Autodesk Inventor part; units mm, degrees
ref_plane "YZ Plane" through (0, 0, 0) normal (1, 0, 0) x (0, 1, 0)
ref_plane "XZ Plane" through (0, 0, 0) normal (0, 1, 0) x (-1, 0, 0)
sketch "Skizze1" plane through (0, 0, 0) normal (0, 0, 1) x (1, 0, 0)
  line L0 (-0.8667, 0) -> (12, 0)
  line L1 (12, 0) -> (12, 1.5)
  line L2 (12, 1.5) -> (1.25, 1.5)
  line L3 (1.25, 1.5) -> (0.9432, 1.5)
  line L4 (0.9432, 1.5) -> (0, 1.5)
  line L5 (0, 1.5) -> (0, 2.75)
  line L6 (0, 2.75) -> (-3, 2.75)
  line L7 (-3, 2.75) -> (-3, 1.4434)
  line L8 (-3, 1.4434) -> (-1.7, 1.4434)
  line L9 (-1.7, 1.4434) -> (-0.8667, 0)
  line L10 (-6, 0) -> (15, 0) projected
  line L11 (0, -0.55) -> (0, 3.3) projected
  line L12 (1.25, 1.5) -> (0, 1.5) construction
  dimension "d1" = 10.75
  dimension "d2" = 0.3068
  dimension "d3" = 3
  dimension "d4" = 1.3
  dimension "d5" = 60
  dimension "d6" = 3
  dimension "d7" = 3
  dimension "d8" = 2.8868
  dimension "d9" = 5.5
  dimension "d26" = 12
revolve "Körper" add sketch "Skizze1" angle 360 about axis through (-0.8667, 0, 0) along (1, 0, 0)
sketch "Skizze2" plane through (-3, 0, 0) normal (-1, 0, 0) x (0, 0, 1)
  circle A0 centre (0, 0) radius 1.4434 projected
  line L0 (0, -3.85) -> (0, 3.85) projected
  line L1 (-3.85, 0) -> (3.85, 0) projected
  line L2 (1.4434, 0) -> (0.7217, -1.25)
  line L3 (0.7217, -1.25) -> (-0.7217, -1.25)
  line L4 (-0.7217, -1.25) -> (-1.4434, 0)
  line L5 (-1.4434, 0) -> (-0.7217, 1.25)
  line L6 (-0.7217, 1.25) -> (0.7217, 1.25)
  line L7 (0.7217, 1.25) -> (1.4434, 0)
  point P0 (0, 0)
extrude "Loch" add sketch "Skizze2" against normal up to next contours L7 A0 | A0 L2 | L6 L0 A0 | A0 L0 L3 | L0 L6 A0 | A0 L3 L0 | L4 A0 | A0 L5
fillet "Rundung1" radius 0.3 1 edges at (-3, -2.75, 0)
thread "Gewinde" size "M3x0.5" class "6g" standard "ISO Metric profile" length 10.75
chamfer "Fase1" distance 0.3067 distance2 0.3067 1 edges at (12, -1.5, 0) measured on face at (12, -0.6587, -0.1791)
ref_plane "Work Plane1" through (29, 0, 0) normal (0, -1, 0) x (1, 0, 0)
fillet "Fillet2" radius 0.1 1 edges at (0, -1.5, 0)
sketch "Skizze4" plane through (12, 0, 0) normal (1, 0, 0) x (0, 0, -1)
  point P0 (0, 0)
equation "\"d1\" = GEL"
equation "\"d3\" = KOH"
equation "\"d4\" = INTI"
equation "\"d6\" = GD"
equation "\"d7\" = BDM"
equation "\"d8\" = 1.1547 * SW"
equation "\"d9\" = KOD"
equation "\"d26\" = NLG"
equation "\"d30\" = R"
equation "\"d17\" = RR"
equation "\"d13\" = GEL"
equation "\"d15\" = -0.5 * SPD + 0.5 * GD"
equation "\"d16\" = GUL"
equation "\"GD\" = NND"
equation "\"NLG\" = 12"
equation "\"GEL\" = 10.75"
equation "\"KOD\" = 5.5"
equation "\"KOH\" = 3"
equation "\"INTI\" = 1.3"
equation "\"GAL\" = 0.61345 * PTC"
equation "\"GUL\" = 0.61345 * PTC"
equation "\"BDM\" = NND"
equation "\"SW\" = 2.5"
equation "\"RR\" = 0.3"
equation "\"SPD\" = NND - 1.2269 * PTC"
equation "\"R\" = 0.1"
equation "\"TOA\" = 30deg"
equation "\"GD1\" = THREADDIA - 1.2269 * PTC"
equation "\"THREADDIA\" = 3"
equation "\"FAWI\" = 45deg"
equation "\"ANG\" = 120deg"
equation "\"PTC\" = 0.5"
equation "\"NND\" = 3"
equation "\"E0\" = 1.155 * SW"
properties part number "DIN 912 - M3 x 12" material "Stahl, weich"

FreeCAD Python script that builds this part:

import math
import FreeCAD as App
import Part
import Sketcher
from FreeCAD import Vector
Q = App.Units.Quantity


def edges_at(feature, points):
    """Names of the edges that pass closest to the given points."""
    edges = feature.Shape.Edges
    near = lambda p: min(range(len(edges)), key=lambda i: edges[i].distToShape(Part.Vertex(*p))[0])
    return sorted({f"Edge{near(p) + 1}" for p in points})


def add_polygon(sketch, points):
    """Adds a closed chain of lines whose ends are joined by coincident constraints."""
    first, n = sketch.GeometryCount, len(points)
    for a, b in zip(points, points[1:] + points[:1]):
        sketch.addGeometry(Part.LineSegment(App.Vector(*a, 0), App.Vector(*b, 0)), False)
    for i in range(n):
        sketch.addConstraint(Sketcher.Constraint("Coincident", first + i, 2, first + (i + 1) % n, 1))

doc = App.newDocument("Part")
body = doc.addObject("PartDesign::Body", "Body")

sketch1 = body.newObject("Sketcher::SketchObject", "Sketch")
sketch1.AttachmentSupport = (doc.getObject("XY_Plane"), [""])
sketch1.MapMode = "FlatFace"
add_polygon(sketch1, [(-1.7, 1.4), (-0.9, 0), (12, 0), (12, 1.5), (0, 1.5), (0, 2.8), (-3, 2.8), (-3, 1.4)])
sketch1.addConstraint([
    Sketcher.Constraint("Horizontal", 1),
    Sketcher.Constraint("Vertical", 2),
    Sketcher.Constraint("Horizontal", 3),
    Sketcher.Constraint("Vertical", 4),
    Sketcher.Constraint("Horizontal", 5),
    Sketcher.Constraint("Vertical", 6),
    Sketcher.Constraint("Horizontal", 7),
    Sketcher.Constraint("PointOnObject", 0, 2, -1),
    Sketcher.Constraint("PointOnObject", 3, 2, -2),
    Sketcher.Constraint("DistanceX", 3, 2, 3, 1, 12.0),
    Sketcher.Constraint("DistanceX", 5, 2, 5, 1, 3.0),
    Sketcher.Constraint("DistanceX", 7, 1, 7, 2, 1.3),
    Sketcher.Constraint("DistanceY", 2, 1, 2, 2, 1.5),
    Sketcher.Constraint("DistanceY", 4, 1, 4, 2, 1.25),
    Sketcher.Constraint("DistanceX", 1, 1, 1, 2, 12.8667),
    Sketcher.Constraint("DistanceY", 6, 2, 6, 1, 1.3066),
])
revolution = body.newObject("PartDesign::Revolution", "Revolution")
revolution.Profile = sketch1
revolution.ReferenceAxis = (sketch1, ["H_Axis"])
revolution.Angle = 360

sketch2 = body.newObject("Sketcher::SketchObject", "Sketch001")
sketch2.AttachmentSupport = (doc.getObject("YZ_Plane"), [""])
sketch2.MapMode = "FlatFace"
sketch2.AttachmentOffset = App.Placement(Vector(0, 0, -3), App.Rotation())
sketch2.addGeometry([
    Part.LineSegment(Vector(1.2, 0.7, 0), Vector(0, 1.4, 0)),
    Part.ArcOfCircle(Part.Circle(Vector(0, 0, 0), Vector(0, 0, 1), 1.4), math.radians(30), math.radians(90)),
    Part.ArcOfCircle(Part.Circle(Vector(0, 0, 0), Vector(0, 0, 1), 1.4), math.radians(90), math.radians(150)),
    Part.LineSegment(Vector(0, 1.4, 0), Vector(-1.2, 0.7, 0)),
    Part.ArcOfCircle(Part.Circle(Vector(0, 0, 0), Vector(0, 0, 1), 1.4), math.radians(-30), math.radians(30)),
    Part.LineSegment(Vector(1.2, 0.7, 0), Vector(1.2, -0.7, 0)),
    Part.LineSegment(Vector(-1.2, 0.7, 0), Vector(-1.2, -0.7, 0)),
    Part.ArcOfCircle(Part.Circle(Vector(0, 0, 0), Vector(0, 0, 1), 1.4), math.radians(150), math.radians(210)),
    Part.LineSegment(Vector(-1.2, -0.7, 0), Vector(0, -1.4, 0)),
    Part.ArcOfCircle(Part.Circle(Vector(0, 0, 0), Vector(0, 0, 1), 1.4), math.radians(-150), math.radians(-90)),
    Part.ArcOfCircle(Part.Circle(Vector(0, 0, 0), Vector(0, 0, 1), 1.4), math.radians(-90), math.radians(-30)),
    Part.LineSegment(Vector(0, -1.4, 0), Vector(1.2, -0.7, 0)),
], False)
sketch2.addConstraint([
    Sketcher.Constraint("Coincident", 0, 1, 1, 1),
    Sketcher.Constraint("Coincident", 1, 2, 0, 2),
    Sketcher.Constraint("Coincident", 2, 1, 3, 1),
    Sketcher.Constraint("Coincident", 3, 2, 2, 2),
    Sketcher.Constraint("Coincident", 4, 1, 5, 2),
    Sketcher.Constraint("Coincident", 5, 1, 4, 2),
    Sketcher.Constraint("Coincident", 6, 1, 7, 1),
    Sketcher.Constraint("Coincident", 7, 2, 6, 2),
    Sketcher.Constraint("Coincident", 8, 1, 9, 1),
    Sketcher.Constraint("Coincident", 9, 2, 8, 2),
    Sketcher.Constraint("Coincident", 10, 1, 11, 1),
    Sketcher.Constraint("Coincident", 11, 2, 10, 2),
    Sketcher.Constraint("Vertical", 5),
    Sketcher.Constraint("Vertical", 6),
    Sketcher.Constraint("Coincident", 1, 3, -1, 1),
    Sketcher.Constraint("Coincident", 2, 3, -1, 1),
    Sketcher.Constraint("Coincident", 4, 3, -1, 1),
    Sketcher.Constraint("Coincident", 7, 3, -1, 1),
    Sketcher.Constraint("Coincident", 9, 3, -1, 1),
    Sketcher.Constraint("Coincident", 10, 3, -1, 1),
    Sketcher.Constraint("Coincident", 2, 1, 1, 2),
    Sketcher.Constraint("Coincident", 5, 1, 0, 1),
    Sketcher.Constraint("Coincident", 6, 1, 3, 2),
    Sketcher.Constraint("Coincident", 8, 1, 7, 2),
    Sketcher.Constraint("Coincident", 10, 1, 9, 2),
    Sketcher.Constraint("PointOnObject", 1, 2, -2),
    Sketcher.Constraint("PointOnObject", 9, 2, -2),
    Sketcher.Constraint("Parallel", 0, 8),
    Sketcher.Constraint("Parallel", 3, 11),
    Sketcher.Constraint("Angle", 0, Q("149.9996 deg")),
    Sketcher.Constraint("Radius", 1, 1.4434),
])
pad1 = body.newObject("PartDesign::Pad", "Pad")
pad1.Profile = sketch2
pad1.Type = "UpToFirst"
doc.recompute()

fillet = body.newObject("PartDesign::Fillet", "Fillet")
fillet.Base = (pad1, edges_at(pad1, [(-3, -2.75, 0)]))
fillet.Radius = 0.3
doc.recompute()

chamfer = body.newObject("PartDesign::Chamfer", "Chamfer")
chamfer.Base = (fillet, edges_at(fillet, [(12, -1.5, 0)]))
chamfer.ChamferType = "Two distances"
chamfer.Size = 0.3067
chamfer.Size2 = 0.3067
doc.recompute()

fillet2 = body.newObject("PartDesign::Fillet", "Fillet001")
fillet2.Base = (chamfer, edges_at(chamfer, [(0, -1.5, 0)]))
fillet2.Radius = 0.1

doc.recompute()
